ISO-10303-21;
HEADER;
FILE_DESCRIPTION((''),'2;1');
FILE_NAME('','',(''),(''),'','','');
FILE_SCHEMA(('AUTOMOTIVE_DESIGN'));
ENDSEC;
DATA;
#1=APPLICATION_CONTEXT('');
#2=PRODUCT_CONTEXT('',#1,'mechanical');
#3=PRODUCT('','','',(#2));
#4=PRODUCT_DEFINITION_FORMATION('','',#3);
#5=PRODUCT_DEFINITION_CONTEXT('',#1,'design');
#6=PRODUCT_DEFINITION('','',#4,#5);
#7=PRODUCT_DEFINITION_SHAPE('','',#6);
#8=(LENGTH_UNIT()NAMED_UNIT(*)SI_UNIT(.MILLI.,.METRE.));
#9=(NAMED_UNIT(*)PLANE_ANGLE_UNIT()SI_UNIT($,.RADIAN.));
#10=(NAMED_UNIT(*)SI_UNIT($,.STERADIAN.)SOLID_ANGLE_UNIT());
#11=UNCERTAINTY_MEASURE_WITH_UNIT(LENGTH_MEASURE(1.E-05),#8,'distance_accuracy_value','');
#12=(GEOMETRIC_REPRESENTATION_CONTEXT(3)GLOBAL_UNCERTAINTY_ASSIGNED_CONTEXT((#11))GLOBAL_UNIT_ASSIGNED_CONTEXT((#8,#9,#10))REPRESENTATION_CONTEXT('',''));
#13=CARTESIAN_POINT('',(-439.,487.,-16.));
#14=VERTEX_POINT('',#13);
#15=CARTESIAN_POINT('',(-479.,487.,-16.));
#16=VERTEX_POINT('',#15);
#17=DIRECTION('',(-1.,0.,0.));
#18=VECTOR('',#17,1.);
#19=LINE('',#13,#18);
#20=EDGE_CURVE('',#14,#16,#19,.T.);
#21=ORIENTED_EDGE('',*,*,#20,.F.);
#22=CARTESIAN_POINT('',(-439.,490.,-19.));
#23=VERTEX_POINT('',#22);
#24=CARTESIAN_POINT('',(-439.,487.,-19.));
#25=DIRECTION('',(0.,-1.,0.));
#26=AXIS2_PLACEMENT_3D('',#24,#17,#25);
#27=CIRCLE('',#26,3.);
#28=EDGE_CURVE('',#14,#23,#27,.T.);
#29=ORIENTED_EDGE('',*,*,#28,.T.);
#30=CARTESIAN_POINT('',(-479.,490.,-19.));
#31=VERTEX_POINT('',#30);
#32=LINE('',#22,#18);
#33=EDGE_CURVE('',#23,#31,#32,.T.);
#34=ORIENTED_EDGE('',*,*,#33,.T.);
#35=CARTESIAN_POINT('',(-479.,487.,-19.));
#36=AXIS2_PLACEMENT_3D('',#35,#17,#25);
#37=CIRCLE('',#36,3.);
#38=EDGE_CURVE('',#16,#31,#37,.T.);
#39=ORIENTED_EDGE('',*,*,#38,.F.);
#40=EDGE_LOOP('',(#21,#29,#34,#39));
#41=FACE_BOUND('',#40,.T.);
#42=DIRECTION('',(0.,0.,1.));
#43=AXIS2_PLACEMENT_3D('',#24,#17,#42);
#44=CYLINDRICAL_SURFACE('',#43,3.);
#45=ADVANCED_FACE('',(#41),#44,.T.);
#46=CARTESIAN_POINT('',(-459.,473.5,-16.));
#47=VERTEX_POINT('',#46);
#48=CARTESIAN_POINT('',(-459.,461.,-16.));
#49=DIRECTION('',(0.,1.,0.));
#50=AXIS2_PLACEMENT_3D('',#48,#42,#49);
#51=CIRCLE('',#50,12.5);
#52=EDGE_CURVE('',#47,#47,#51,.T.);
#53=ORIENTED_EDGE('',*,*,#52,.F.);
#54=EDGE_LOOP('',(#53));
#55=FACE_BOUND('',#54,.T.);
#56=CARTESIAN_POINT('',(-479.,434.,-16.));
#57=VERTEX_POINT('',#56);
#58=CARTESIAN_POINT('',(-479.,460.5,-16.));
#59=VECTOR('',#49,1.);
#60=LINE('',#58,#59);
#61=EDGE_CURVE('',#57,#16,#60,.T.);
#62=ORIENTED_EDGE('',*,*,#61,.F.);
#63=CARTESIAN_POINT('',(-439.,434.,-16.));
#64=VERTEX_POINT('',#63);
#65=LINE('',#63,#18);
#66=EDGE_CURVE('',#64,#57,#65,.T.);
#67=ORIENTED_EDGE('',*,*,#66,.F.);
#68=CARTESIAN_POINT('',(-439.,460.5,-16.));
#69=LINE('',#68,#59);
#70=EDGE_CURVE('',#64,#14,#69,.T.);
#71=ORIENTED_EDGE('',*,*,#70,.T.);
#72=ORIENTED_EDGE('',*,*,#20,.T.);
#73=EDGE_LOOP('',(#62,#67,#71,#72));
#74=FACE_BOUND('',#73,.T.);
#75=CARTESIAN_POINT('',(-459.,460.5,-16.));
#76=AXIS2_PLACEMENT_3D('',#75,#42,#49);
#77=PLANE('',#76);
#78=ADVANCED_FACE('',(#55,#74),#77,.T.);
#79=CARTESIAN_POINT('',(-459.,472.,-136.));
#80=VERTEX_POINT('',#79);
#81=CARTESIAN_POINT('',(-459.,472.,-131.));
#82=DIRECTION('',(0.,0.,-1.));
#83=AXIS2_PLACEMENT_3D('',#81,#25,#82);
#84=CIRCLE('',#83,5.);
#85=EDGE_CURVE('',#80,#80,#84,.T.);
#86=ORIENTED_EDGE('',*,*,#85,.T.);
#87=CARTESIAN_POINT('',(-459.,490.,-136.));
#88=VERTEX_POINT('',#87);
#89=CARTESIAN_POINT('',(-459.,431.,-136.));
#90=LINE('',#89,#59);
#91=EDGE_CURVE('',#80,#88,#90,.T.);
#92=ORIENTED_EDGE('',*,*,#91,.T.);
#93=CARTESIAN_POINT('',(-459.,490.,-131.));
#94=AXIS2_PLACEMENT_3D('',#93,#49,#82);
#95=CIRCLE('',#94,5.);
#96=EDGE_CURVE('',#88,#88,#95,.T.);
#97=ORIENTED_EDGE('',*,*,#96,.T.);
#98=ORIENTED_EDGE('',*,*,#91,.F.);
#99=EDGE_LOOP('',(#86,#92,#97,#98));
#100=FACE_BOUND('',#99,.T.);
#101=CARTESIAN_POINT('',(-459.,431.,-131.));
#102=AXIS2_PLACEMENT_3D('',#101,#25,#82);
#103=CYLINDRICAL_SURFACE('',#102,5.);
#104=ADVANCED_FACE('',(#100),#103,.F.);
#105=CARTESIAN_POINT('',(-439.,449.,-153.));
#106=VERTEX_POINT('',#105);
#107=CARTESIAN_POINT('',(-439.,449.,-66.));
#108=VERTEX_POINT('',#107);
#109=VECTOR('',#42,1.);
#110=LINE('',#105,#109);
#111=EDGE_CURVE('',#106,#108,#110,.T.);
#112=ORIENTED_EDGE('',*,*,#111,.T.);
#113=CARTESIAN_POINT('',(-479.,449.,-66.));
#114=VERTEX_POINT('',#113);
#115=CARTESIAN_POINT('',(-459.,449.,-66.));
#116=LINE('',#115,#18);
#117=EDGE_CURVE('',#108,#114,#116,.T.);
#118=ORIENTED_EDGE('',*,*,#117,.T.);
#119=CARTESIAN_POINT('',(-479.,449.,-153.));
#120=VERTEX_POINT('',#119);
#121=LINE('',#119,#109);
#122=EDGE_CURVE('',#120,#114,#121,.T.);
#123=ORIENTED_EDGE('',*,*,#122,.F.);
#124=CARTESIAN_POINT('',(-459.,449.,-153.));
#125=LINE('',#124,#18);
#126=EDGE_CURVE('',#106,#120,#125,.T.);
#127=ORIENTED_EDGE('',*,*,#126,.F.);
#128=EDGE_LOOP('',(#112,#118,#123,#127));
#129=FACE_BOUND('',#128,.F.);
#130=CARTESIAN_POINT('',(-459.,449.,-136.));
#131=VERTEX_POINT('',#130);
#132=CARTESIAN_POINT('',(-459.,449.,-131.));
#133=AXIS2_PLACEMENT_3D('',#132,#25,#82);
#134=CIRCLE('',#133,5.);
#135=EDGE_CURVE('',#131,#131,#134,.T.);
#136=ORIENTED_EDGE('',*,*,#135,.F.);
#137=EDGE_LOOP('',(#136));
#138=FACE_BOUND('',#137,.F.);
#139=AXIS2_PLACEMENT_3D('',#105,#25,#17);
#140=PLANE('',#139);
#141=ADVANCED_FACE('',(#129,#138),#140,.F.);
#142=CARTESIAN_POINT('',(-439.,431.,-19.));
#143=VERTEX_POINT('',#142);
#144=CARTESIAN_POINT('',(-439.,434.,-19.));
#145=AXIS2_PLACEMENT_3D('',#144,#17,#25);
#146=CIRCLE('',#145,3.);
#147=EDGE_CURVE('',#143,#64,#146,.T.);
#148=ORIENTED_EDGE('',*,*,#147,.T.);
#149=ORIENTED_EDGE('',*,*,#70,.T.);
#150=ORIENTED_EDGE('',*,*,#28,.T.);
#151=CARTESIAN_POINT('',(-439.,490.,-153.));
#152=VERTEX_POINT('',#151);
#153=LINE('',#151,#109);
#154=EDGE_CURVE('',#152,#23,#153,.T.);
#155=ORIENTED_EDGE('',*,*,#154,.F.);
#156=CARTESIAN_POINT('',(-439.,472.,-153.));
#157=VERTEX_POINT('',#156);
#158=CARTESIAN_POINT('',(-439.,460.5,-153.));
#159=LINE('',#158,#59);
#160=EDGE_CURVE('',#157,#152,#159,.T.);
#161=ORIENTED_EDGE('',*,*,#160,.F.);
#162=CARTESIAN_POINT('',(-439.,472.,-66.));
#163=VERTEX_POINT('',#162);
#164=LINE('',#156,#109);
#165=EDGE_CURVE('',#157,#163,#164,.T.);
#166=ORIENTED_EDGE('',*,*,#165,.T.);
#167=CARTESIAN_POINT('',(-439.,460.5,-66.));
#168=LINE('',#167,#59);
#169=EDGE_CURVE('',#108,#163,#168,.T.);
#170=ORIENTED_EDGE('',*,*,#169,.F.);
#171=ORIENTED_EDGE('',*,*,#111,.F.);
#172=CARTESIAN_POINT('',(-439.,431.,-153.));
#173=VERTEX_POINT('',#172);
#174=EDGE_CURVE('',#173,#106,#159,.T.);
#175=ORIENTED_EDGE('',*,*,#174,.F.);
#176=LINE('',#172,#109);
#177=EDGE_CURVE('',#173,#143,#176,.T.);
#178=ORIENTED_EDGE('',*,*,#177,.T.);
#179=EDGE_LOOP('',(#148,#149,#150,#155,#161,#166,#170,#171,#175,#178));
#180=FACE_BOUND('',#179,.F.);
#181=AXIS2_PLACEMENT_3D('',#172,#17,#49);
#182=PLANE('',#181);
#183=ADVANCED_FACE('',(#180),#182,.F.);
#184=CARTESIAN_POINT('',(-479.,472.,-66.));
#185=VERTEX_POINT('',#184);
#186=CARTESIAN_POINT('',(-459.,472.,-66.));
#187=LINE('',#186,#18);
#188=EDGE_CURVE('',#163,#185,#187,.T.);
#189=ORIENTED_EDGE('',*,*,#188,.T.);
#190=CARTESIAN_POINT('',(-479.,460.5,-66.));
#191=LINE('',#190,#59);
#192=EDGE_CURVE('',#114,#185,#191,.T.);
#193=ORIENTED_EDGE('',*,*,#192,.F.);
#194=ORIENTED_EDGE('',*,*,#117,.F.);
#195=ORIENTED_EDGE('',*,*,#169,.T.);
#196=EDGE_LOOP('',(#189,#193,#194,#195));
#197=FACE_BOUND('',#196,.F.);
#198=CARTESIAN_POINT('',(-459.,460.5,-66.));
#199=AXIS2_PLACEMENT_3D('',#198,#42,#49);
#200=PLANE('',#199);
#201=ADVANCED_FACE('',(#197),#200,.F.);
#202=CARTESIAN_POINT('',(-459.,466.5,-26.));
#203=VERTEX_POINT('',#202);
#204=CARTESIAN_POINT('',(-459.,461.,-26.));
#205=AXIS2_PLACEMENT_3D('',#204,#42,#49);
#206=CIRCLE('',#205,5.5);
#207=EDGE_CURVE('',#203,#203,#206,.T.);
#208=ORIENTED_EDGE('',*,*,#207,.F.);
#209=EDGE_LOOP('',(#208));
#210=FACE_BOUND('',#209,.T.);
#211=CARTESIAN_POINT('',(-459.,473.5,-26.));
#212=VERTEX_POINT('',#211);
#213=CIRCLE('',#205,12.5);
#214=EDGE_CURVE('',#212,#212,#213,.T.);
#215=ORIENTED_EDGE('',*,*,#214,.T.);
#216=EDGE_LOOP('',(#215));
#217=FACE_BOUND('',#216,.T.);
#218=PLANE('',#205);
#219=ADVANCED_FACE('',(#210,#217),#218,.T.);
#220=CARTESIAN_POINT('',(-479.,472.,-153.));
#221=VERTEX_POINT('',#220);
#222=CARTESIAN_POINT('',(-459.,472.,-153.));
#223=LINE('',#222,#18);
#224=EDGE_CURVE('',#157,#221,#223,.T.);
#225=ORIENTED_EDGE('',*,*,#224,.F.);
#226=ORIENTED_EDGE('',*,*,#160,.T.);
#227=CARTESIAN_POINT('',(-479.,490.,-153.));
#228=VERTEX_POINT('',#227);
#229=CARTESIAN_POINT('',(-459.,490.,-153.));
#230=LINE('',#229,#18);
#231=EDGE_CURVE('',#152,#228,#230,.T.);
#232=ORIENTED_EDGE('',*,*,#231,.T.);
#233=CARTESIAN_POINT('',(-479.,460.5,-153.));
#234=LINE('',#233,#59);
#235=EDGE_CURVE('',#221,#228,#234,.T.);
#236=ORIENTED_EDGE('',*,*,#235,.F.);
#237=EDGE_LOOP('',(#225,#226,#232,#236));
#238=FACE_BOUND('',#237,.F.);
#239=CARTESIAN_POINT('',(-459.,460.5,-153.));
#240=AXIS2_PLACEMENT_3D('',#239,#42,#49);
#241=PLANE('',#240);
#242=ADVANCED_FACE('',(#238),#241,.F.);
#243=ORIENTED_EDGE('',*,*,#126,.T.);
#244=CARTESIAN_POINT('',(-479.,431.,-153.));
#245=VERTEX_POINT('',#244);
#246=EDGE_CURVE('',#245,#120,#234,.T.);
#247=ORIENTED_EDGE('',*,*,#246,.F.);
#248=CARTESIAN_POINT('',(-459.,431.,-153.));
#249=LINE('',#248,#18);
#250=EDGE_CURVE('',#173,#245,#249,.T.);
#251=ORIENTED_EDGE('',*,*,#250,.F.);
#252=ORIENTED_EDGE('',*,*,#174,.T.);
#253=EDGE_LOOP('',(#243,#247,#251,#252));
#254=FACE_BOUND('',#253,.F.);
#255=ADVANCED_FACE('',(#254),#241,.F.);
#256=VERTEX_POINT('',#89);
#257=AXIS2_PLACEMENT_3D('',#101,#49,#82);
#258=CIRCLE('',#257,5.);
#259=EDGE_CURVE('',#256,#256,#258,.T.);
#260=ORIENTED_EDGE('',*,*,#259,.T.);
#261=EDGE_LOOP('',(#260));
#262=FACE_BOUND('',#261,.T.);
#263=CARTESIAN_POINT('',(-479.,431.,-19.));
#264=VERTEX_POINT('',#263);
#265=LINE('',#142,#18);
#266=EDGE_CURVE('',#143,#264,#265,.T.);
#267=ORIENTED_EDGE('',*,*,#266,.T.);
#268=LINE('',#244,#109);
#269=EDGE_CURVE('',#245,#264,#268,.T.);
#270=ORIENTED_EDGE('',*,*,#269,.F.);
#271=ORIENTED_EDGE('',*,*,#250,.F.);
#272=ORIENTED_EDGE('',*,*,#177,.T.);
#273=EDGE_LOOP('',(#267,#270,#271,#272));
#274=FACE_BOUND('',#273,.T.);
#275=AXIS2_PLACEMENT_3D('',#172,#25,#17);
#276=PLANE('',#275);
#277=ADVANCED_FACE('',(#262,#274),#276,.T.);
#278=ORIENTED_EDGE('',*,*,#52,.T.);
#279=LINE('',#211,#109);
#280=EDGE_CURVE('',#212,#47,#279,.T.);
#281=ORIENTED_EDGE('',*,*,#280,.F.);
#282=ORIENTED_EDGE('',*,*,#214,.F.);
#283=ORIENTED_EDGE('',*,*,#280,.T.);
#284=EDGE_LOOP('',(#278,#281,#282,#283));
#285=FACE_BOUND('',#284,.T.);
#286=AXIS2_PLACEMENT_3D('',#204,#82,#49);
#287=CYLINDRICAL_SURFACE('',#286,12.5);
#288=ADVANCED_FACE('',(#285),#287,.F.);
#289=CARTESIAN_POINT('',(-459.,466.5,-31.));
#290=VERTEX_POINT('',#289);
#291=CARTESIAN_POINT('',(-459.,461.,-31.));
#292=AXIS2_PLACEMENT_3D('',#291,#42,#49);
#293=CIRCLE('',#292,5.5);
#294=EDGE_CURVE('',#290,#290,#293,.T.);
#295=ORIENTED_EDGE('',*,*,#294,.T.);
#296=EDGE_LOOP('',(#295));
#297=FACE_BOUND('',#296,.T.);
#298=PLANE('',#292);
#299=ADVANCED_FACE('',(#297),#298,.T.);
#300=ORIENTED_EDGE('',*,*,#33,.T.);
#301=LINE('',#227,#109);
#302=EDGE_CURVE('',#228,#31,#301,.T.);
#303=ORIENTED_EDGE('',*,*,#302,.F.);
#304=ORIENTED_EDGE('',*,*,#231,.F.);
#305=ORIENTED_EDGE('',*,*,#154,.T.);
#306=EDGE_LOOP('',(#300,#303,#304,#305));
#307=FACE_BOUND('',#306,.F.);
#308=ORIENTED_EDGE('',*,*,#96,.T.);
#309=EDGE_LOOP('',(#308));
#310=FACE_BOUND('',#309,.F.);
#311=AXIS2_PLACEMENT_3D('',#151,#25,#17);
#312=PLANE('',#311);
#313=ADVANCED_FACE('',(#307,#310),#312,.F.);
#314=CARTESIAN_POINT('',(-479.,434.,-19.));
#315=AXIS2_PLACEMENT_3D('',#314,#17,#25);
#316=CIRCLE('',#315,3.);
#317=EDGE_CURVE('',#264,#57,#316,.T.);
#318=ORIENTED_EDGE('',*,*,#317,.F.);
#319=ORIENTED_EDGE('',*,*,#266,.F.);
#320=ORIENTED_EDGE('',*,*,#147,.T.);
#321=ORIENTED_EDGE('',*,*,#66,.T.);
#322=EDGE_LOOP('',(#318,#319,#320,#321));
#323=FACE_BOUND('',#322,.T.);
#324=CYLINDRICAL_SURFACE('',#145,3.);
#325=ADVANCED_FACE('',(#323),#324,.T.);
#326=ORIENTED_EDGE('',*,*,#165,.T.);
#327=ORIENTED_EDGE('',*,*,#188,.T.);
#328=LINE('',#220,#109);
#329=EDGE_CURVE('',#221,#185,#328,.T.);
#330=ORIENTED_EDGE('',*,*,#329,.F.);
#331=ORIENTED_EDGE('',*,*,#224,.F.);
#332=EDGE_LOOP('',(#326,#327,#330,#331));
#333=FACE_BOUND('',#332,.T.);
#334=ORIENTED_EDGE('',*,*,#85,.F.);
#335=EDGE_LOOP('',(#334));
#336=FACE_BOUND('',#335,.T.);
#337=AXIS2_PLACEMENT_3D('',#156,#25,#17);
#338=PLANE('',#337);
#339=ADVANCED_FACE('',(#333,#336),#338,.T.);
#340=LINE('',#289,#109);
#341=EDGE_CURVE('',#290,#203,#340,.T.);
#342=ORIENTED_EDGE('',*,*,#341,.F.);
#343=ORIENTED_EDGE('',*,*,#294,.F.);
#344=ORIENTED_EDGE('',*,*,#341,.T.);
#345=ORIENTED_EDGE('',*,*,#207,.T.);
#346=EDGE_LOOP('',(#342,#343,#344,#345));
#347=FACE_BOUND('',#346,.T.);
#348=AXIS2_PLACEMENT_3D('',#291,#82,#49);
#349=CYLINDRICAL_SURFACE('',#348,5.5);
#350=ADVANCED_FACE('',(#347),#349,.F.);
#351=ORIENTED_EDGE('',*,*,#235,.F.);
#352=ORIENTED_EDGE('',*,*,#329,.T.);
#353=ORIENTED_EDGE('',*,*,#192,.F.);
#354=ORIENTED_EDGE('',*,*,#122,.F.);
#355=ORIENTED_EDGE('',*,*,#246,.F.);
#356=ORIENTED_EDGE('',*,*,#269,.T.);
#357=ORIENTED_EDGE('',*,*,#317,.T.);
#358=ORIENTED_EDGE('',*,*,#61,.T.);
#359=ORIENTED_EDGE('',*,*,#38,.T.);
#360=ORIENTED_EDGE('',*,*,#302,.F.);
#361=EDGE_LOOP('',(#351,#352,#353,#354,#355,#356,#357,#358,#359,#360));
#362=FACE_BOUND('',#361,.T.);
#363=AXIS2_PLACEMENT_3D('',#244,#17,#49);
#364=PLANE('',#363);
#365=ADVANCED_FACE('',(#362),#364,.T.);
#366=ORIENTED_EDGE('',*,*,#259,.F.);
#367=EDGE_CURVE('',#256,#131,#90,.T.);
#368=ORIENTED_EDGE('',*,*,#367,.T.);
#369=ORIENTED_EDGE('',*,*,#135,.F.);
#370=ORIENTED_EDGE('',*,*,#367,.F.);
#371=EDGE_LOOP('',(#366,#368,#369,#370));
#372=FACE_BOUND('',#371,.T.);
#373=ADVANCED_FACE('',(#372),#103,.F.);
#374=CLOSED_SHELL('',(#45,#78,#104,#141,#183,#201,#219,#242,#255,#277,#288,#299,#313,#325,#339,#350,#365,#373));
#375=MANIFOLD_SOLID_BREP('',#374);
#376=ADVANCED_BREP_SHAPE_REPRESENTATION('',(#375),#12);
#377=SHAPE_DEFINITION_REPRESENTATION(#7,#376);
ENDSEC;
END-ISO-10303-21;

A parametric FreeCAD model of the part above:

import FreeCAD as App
import Part
import Sketcher
from FreeCAD import Vector
Q = App.Units.Quantity


def edges_at(feature, points):
    """Names of the edges that pass closest to the given points."""
    edges = feature.Shape.Edges
    near = lambda p: min(range(len(edges)), key=lambda i: edges[i].distToShape(Part.Vertex(*p))[0])
    return sorted({f"Edge{near(p) + 1}" for p in points})

doc = App.newDocument("Part")
body = doc.addObject("PartDesign::Body", "Body")

# Sketch on XY plane
sketch1 = body.newObject("Sketcher::SketchObject", "Sketch")
sketch1.AttachmentSupport = (doc.getObject("XY_Plane"), [""])
sketch1.MapMode = "FlatFace"
sketch1.AttachmentOffset = App.Placement(Vector(0, 0, 122), App.Rotation())
sketch1.addGeometry(Part.Circle(Vector(30, 15, 0), Vector(0, 0, 1), 5.5), False)
sketch1.addConstraint(Sketcher.Constraint("Diameter", 0, Q("11 mm")))
sketch1.addConstraint(Sketcher.Constraint("DistanceX", -1, 1, 0, 3, Q("30 mm")))
sketch1.addConstraint(Sketcher.Constraint("DistanceY", -1, 1, 0, 3, Q("15 mm")))
pad1 = body.newObject("PartDesign::Pad", "Pad")
pad1.Profile = sketch1
pad1.Length = 5
body2 = doc.addObject("PartDesign::Body", "Body001")

# Sketch on XY plane
sketch2 = body2.newObject("Sketcher::SketchObject", "Sketch001")
sketch2.AttachmentSupport = (doc.getObject("XY_Plane001"), [""])
sketch2.MapMode = "FlatFace"
sketch2.AttachmentOffset = App.Placement(Vector(0, 0, 127), App.Rotation())
sketch2.addGeometry(Part.Circle(Vector(30, 15, 0), Vector(0, 0, 1), 12.5), False)
sketch2.addConstraint(Sketcher.Constraint("Diameter", 0, Q("25 mm")))
sketch2.addConstraint(Sketcher.Constraint("DistanceX", -1, 1, 0, 3, Q("30 mm")))
sketch2.addConstraint(Sketcher.Constraint("DistanceY", -1, 1, 0, 3, Q("15 mm")))
pad2 = body2.newObject("PartDesign::Pad", "Pad001")
pad2.Profile = sketch2
pad2.Length = 10
body3 = doc.addObject("PartDesign::Body", "Body002")

# Sketch on XY plane
sketch3 = body3.newObject("Sketcher::SketchObject", "Sketch002")
sketch3.AttachmentSupport = (doc.getObject("XY_Plane002"), [""])
sketch3.MapMode = "FlatFace"
sketch3.addGeometry(Part.Circle(Vector(0, 0, 0), Vector(0, 0, 1), 5), False)
sketch3.addConstraint(Sketcher.Constraint("Coincident", 0, 3, -1, 1))
sketch3.addConstraint(Sketcher.Constraint("Diameter", 0, Q("10 mm")))
pad3 = body3.newObject("PartDesign::Pad", "Pad002")
pad3.Profile = sketch3
pad3.Length = 59
body4 = doc.addObject("PartDesign::Body", "Body003")
doc.recompute()

body3.Placement = App.Placement(Vector(0, 0, 0), App.Rotation(Vector(0, 1, 0), 90))
boolean = body4.newObject("PartDesign::Boolean", "Boolean")
boolean.Type = "Fuse"
boolean.addObjects([body3])
body5 = doc.addObject("PartDesign::Body", "Body004")
doc.recompute()

body4.Placement = App.Placement(Vector(0, 15, 22), App.Rotation(Vector(0, 0, 1), 0))
boolean2 = body5.newObject("PartDesign::Boolean", "Boolean001")
boolean2.Type = "Fuse"
boolean2.addObjects([body4])
body6 = doc.addObject("PartDesign::Body", "Body005")

# Sketch on XY plane
sketch4 = body6.newObject("Sketcher::SketchObject", "Sketch003")
sketch4.AttachmentSupport = (doc.getObject("XY_Plane005"), [""])
sketch4.MapMode = "FlatFace"
sketch4.addGeometry(Part.LineSegment(Vector(18, 35, 0), Vector(18, -5, 0)), False)
sketch4.addGeometry(Part.LineSegment(Vector(18, -5, 0), Vector(41, -5, 0)), False)
sketch4.addGeometry(Part.LineSegment(Vector(41, -5, 0), Vector(41, 35, 0)), False)
sketch4.addGeometry(Part.LineSegment(Vector(41, 35, 0), Vector(18, 35, 0)), False)
sketch4.addConstraint(Sketcher.Constraint("Coincident", 0, 2, 1, 1))
sketch4.addConstraint(Sketcher.Constraint("Coincident", 1, 2, 2, 1))
sketch4.addConstraint(Sketcher.Constraint("Coincident", 2, 2, 3, 1))
sketch4.addConstraint(Sketcher.Constraint("Coincident", 3, 2, 0, 1))
sketch4.addConstraint(Sketcher.Constraint("Vertical", 0))
sketch4.addConstraint(Sketcher.Constraint("Horizontal", 1))
sketch4.addConstraint(Sketcher.Constraint("Vertical", 2))
sketch4.addConstraint(Sketcher.Constraint("Horizontal", 3))
sketch4.addConstraint(Sketcher.Constraint("DistanceX", 1, 1, 1, 2, Q("23 mm")))
sketch4.addConstraint(Sketcher.Constraint("DistanceY", 0, 2, 0, 1, Q("40 mm")))
sketch4.addConstraint(Sketcher.Constraint("DistanceX", -1, 1, 0, 2, Q("18 mm")))
sketch4.addConstraint(Sketcher.Constraint("DistanceY", 0, 2, -1, 1, Q("5 mm")))
pad4 = body6.newObject("PartDesign::Pad", "Pad003")
pad4.Profile = sketch4
pad4.Length = 87
body7 = doc.addObject("PartDesign::Body", "Body006")

# Sketch on XY plane
sketch5 = body7.newObject("Sketcher::SketchObject", "Sketch004")
sketch5.AttachmentSupport = (doc.getObject("XY_Plane006"), [""])
sketch5.MapMode = "FlatFace"
sketch5.addGeometry(Part.LineSegment(Vector(0, 35, 0), Vector(0, -5, 0)), False)
sketch5.addGeometry(Part.LineSegment(Vector(0, -5, 0), Vector(59, -5, 0)), False)
sketch5.addGeometry(Part.LineSegment(Vector(59, -5, 0), Vector(59, 35, 0)), False)
sketch5.addGeometry(Part.LineSegment(Vector(59, 35, 0), Vector(0, 35, 0)), False)
sketch5.addConstraint(Sketcher.Constraint("Coincident", 0, 2, 1, 1))
sketch5.addConstraint(Sketcher.Constraint("Coincident", 1, 2, 2, 1))
sketch5.addConstraint(Sketcher.Constraint("Coincident", 2, 2, 3, 1))
sketch5.addConstraint(Sketcher.Constraint("Coincident", 3, 2, 0, 1))
sketch5.addConstraint(Sketcher.Constraint("Vertical", 0))
sketch5.addConstraint(Sketcher.Constraint("Horizontal", 1))
sketch5.addConstraint(Sketcher.Constraint("Vertical", 2))
sketch5.addConstraint(Sketcher.Constraint("Horizontal", 3))
sketch5.addConstraint(Sketcher.Constraint("PointOnObject", 0, 2, -2))
sketch5.addConstraint(Sketcher.Constraint("DistanceX", 1, 1, 1, 2, Q("59 mm")))
sketch5.addConstraint(Sketcher.Constraint("DistanceY", 0, 2, 0, 1, Q("40 mm")))
sketch5.addConstraint(Sketcher.Constraint("DistanceY", 0, 2, -1, 1, Q("5 mm")))
pad5 = body7.newObject("PartDesign::Pad", "Pad004")
pad5.Profile = sketch5
pad5.Length = 137
doc.recompute()

boolean3 = body7.newObject("PartDesign::Boolean", "Boolean002")
boolean3.Type = "Cut"
boolean3.addObjects([body6])
doc.recompute()

boolean4 = body7.newObject("PartDesign::Boolean", "Boolean003")
boolean4.Type = "Cut"
boolean4.addObjects([body5])
doc.recompute()

boolean5 = body7.newObject("PartDesign::Boolean", "Boolean004")
boolean5.Type = "Cut"
boolean5.addObjects([body2])
doc.recompute()

boolean6 = body7.newObject("PartDesign::Boolean", "Boolean005")
boolean6.Type = "Cut"
boolean6.addObjects([body])
body8 = doc.addObject("PartDesign::Body", "Body007")
doc.recompute()

body7.Placement = App.Placement(Vector(-444, 431, -153), App.Rotation(Vector(0, 0, 1), 90))
boolean7 = body8.newObject("PartDesign::Boolean", "Boolean006")
boolean7.Type = "Fuse"
boolean7.addObjects([body7])
doc.recompute()

fillet = body8.newObject("PartDesign::Fillet", "Fillet")
fillet.Base = (boolean7, edges_at(boolean7, [(-459, 431, -16), (-459, 490, -16)]))
fillet.Radius = 3

doc.recompute()
